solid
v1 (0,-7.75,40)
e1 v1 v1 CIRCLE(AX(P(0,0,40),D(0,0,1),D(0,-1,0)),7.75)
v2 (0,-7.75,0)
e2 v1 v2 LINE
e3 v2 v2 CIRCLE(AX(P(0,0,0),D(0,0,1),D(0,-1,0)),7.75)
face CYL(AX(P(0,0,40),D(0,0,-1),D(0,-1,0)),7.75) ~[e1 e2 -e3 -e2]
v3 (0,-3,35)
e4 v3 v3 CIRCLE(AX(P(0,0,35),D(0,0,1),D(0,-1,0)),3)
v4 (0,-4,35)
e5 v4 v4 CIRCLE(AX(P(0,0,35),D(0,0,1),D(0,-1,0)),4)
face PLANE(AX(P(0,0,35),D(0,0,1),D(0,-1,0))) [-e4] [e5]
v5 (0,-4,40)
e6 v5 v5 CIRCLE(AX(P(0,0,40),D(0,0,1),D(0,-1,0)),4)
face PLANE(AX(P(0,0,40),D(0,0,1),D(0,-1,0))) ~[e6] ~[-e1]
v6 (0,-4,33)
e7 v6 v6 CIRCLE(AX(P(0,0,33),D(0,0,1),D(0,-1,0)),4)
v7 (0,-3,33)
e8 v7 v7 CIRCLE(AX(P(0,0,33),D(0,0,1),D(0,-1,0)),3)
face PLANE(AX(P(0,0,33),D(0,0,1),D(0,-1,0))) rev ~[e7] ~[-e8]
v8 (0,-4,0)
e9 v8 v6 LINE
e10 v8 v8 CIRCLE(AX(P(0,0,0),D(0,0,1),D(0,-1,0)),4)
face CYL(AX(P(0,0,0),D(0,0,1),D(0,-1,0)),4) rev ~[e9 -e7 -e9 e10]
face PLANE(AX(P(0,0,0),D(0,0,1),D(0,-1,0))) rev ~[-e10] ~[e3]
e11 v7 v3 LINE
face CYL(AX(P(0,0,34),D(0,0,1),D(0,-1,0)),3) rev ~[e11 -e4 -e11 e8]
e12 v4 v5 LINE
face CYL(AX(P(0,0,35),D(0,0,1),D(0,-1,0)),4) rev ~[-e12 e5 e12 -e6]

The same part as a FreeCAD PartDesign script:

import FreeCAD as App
import Part
import Sketcher

doc = App.newDocument("Part")
body = doc.addObject("PartDesign::Body", "Body")

# Sketch on YZ plane
sketch1 = body.newObject("Sketcher::SketchObject", "Sketch")
sketch1.AttachmentSupport = (doc.getObject("YZ_Plane"), [""])
sketch1.MapMode = "FlatFace"
sketch1.addGeometry([
    Part.LineSegment(App.Vector(-4, 33, 0), App.Vector(-3, 33, 0)),  # 0
    Part.LineSegment(App.Vector(-3, 33, 0), App.Vector(-3, 35, 0)),  # 1
    Part.LineSegment(App.Vector(-3, 35, 0), App.Vector(-4, 35, 0)),  # 2
    Part.LineSegment(App.Vector(-4, 35, 0), App.Vector(-4, 40, 0)),  # 3
    Part.LineSegment(App.Vector(-4, 40, 0), App.Vector(-7.75, 40, 0)),  # 4
    Part.LineSegment(App.Vector(-7.75, 40, 0), App.Vector(-7.75, 0, 0)),  # 5
    Part.LineSegment(App.Vector(-7.75, 0, 0), App.Vector(-4, 0, 0)),  # 6
    Part.LineSegment(App.Vector(-4, 0, 0), App.Vector(-4, 33, 0)),  # 7
], False)
sketch1.addConstraint([
    Sketcher.Constraint("Coincident", 0, 2, 1, 1),
    Sketcher.Constraint("Coincident", 1, 2, 2, 1),
    Sketcher.Constraint("Coincident", 2, 2, 3, 1),
    Sketcher.Constraint("Coincident", 3, 2, 4, 1),
    Sketcher.Constraint("Coincident", 4, 2, 5, 1),
    Sketcher.Constraint("Coincident", 5, 2, 6, 1),
    Sketcher.Constraint("Coincident", 6, 2, 7, 1),
    Sketcher.Constraint("Coincident", 7, 2, 0, 1),
    Sketcher.Constraint("Horizontal", 0),
    Sketcher.Constraint("Vertical", 1),
    Sketcher.Constraint("Horizontal", 2),
    Sketcher.Constraint("Vertical", 3),
    Sketcher.Constraint("Horizontal", 4),
    Sketcher.Constraint("Vertical", 5),
    Sketcher.Constraint("Horizontal", 6),
    Sketcher.Constraint("Vertical", 7),
    Sketcher.Constraint("PointOnObject", 5, 2, -1),
    Sketcher.Constraint("Vertical", 3, 2, 6, 2),
    Sketcher.Constraint("DistanceX", 0, 1, 0, 2, 1.0),
    Sketcher.Constraint("DistanceY", 1, 1, 1, 2, 2.0),
    Sketcher.Constraint("DistanceY", 3, 1, 3, 2, 5.0),
    Sketcher.Constraint("DistanceY", 5, 2, 5, 1, 40.0),
    Sketcher.Constraint("DistanceX", 0, 2, -1, 1, 3.0),
    Sketcher.Constraint("DistanceX", 4, 2, 4, 1, 3.75),
])
revolution = body.newObject("PartDesign::Revolution", "Revolution")
revolution.Profile = sketch1
revolution.ReferenceAxis = (sketch1, ["V_Axis"])
revolution.Angle = 360

doc.recompute()
